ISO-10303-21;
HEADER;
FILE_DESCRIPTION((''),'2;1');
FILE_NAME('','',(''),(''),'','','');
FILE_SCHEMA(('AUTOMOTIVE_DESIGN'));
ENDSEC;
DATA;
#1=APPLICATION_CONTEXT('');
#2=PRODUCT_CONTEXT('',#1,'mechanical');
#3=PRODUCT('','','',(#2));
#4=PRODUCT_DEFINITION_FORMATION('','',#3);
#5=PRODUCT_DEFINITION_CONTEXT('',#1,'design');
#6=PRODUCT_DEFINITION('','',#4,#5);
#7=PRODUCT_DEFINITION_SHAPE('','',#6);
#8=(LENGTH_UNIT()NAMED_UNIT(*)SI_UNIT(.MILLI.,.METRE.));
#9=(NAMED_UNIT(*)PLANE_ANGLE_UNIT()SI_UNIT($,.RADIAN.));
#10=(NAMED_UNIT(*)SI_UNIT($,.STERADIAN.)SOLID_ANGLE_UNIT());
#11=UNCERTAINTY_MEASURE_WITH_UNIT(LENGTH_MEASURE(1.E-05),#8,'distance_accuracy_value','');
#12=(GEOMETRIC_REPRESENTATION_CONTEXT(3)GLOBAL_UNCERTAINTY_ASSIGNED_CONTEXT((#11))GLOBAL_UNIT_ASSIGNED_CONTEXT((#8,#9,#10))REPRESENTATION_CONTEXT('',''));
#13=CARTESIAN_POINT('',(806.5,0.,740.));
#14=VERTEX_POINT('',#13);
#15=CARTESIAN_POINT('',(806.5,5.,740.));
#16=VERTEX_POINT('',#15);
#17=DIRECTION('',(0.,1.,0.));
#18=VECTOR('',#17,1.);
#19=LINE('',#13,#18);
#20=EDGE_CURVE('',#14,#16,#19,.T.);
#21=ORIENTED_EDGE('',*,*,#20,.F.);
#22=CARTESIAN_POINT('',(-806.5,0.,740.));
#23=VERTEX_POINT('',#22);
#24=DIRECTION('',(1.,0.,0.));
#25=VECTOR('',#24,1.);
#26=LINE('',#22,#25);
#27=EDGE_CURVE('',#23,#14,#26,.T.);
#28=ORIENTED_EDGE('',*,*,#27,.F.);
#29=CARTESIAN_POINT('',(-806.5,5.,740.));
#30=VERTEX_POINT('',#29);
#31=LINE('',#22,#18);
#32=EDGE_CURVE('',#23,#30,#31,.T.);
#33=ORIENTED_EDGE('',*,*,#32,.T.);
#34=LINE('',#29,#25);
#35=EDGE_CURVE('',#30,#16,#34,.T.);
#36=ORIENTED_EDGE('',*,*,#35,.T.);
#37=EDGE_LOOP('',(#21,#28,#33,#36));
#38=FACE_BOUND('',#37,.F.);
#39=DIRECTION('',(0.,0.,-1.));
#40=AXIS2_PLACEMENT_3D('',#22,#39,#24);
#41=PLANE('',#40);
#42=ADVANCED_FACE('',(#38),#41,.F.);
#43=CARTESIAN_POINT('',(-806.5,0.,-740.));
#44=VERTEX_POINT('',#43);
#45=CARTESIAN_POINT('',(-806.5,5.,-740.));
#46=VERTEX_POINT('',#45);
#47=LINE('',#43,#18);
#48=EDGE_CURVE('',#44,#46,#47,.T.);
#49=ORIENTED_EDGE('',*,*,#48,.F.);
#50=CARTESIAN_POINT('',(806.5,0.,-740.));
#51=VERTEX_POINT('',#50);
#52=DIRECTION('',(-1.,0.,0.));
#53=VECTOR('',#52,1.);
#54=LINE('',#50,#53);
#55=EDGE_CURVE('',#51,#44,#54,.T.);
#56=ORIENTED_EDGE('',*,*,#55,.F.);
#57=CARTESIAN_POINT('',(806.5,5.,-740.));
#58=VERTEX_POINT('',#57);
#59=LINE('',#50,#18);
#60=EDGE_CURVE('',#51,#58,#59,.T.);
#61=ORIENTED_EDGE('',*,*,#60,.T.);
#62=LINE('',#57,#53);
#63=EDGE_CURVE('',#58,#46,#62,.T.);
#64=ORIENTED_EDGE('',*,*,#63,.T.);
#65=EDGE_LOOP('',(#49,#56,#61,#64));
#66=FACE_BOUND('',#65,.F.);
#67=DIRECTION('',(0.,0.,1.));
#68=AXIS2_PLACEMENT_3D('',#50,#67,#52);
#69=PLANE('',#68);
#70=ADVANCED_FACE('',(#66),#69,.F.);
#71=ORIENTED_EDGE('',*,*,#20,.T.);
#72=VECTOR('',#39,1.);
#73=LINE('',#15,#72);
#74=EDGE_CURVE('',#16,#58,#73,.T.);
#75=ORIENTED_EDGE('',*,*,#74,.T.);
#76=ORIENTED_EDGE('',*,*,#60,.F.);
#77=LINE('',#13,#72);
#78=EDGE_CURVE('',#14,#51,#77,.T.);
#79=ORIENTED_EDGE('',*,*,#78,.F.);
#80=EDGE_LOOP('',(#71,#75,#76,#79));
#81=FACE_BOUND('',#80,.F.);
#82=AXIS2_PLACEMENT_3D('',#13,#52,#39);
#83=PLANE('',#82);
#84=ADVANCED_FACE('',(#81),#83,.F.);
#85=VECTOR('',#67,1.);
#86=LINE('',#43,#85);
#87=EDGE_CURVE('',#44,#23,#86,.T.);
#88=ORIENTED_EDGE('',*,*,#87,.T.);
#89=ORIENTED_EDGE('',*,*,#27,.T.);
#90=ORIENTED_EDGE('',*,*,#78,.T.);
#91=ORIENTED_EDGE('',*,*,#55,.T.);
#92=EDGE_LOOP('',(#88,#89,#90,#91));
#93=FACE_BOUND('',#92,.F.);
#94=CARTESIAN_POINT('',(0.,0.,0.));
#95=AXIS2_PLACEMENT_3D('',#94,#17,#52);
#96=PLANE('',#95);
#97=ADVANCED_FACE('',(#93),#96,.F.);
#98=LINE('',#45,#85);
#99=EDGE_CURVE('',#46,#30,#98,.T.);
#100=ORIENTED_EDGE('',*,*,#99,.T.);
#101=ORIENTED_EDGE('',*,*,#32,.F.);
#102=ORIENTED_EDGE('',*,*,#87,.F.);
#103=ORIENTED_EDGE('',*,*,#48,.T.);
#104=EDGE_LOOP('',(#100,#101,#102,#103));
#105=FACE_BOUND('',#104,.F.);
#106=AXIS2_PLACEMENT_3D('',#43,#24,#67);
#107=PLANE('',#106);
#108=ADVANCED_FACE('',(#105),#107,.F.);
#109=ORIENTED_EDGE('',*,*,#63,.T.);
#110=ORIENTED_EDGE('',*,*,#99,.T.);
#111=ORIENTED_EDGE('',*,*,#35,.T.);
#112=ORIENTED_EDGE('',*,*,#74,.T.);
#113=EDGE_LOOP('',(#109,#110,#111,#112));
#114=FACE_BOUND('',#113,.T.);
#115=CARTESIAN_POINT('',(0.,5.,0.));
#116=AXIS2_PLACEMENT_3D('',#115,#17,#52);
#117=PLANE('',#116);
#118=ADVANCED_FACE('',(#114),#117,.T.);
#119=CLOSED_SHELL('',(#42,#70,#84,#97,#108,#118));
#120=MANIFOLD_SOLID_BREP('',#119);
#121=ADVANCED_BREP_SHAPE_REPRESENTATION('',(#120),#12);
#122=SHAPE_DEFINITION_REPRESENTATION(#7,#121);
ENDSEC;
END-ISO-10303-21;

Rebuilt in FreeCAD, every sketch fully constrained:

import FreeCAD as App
import Part
import Sketcher

V = App.Vector
Q = App.Units.Quantity

doc = App.newDocument("Part")
body = doc.addObject("PartDesign::Body", "Body")

sketch1 = body.newObject("Sketcher::SketchObject", "Sketch")
sketch1.AttachmentSupport = (doc.getObject("XZ_Plane"), [""])
sketch1.MapMode = "FlatFace"
sketch1.addGeometry([
    Part.LineSegment(V(-806, -740, 0), V(-806, 740, 0)),
    Part.LineSegment(V(-806, 740, 0), V(806, 740, 0)),
    Part.LineSegment(V(806, 740, 0), V(806, -740, 0)),
    Part.LineSegment(V(806, -740, 0), V(-806, -740, 0)),
], False)
sketch1.addConstraint([
    Sketcher.Constraint("Coincident", 0, 2, 1, 1),
    Sketcher.Constraint("Coincident", 1, 2, 2, 1),
    Sketcher.Constraint("Coincident", 2, 2, 3, 1),
    Sketcher.Constraint("Coincident", 3, 2, 0, 1),
    Sketcher.Constraint("Vertical", 0),
    Sketcher.Constraint("Horizontal", 1),
    Sketcher.Constraint("Vertical", 2),
    Sketcher.Constraint("Horizontal", 3),
    Sketcher.Constraint("Symmetric", 0, 2, 2, 2, -1, 1),
    Sketcher.Constraint("DistanceX", 1, 1, 1, 2, Q("1613 mm")),
    Sketcher.Constraint("DistanceY", 0, 1, 0, 2, Q("1480 mm")),
])
pad1 = body.newObject("PartDesign::Pad", "Pad")
pad1.Profile = sketch1
pad1.Length = 5
pad1.Reversed = True

doc.recompute()
